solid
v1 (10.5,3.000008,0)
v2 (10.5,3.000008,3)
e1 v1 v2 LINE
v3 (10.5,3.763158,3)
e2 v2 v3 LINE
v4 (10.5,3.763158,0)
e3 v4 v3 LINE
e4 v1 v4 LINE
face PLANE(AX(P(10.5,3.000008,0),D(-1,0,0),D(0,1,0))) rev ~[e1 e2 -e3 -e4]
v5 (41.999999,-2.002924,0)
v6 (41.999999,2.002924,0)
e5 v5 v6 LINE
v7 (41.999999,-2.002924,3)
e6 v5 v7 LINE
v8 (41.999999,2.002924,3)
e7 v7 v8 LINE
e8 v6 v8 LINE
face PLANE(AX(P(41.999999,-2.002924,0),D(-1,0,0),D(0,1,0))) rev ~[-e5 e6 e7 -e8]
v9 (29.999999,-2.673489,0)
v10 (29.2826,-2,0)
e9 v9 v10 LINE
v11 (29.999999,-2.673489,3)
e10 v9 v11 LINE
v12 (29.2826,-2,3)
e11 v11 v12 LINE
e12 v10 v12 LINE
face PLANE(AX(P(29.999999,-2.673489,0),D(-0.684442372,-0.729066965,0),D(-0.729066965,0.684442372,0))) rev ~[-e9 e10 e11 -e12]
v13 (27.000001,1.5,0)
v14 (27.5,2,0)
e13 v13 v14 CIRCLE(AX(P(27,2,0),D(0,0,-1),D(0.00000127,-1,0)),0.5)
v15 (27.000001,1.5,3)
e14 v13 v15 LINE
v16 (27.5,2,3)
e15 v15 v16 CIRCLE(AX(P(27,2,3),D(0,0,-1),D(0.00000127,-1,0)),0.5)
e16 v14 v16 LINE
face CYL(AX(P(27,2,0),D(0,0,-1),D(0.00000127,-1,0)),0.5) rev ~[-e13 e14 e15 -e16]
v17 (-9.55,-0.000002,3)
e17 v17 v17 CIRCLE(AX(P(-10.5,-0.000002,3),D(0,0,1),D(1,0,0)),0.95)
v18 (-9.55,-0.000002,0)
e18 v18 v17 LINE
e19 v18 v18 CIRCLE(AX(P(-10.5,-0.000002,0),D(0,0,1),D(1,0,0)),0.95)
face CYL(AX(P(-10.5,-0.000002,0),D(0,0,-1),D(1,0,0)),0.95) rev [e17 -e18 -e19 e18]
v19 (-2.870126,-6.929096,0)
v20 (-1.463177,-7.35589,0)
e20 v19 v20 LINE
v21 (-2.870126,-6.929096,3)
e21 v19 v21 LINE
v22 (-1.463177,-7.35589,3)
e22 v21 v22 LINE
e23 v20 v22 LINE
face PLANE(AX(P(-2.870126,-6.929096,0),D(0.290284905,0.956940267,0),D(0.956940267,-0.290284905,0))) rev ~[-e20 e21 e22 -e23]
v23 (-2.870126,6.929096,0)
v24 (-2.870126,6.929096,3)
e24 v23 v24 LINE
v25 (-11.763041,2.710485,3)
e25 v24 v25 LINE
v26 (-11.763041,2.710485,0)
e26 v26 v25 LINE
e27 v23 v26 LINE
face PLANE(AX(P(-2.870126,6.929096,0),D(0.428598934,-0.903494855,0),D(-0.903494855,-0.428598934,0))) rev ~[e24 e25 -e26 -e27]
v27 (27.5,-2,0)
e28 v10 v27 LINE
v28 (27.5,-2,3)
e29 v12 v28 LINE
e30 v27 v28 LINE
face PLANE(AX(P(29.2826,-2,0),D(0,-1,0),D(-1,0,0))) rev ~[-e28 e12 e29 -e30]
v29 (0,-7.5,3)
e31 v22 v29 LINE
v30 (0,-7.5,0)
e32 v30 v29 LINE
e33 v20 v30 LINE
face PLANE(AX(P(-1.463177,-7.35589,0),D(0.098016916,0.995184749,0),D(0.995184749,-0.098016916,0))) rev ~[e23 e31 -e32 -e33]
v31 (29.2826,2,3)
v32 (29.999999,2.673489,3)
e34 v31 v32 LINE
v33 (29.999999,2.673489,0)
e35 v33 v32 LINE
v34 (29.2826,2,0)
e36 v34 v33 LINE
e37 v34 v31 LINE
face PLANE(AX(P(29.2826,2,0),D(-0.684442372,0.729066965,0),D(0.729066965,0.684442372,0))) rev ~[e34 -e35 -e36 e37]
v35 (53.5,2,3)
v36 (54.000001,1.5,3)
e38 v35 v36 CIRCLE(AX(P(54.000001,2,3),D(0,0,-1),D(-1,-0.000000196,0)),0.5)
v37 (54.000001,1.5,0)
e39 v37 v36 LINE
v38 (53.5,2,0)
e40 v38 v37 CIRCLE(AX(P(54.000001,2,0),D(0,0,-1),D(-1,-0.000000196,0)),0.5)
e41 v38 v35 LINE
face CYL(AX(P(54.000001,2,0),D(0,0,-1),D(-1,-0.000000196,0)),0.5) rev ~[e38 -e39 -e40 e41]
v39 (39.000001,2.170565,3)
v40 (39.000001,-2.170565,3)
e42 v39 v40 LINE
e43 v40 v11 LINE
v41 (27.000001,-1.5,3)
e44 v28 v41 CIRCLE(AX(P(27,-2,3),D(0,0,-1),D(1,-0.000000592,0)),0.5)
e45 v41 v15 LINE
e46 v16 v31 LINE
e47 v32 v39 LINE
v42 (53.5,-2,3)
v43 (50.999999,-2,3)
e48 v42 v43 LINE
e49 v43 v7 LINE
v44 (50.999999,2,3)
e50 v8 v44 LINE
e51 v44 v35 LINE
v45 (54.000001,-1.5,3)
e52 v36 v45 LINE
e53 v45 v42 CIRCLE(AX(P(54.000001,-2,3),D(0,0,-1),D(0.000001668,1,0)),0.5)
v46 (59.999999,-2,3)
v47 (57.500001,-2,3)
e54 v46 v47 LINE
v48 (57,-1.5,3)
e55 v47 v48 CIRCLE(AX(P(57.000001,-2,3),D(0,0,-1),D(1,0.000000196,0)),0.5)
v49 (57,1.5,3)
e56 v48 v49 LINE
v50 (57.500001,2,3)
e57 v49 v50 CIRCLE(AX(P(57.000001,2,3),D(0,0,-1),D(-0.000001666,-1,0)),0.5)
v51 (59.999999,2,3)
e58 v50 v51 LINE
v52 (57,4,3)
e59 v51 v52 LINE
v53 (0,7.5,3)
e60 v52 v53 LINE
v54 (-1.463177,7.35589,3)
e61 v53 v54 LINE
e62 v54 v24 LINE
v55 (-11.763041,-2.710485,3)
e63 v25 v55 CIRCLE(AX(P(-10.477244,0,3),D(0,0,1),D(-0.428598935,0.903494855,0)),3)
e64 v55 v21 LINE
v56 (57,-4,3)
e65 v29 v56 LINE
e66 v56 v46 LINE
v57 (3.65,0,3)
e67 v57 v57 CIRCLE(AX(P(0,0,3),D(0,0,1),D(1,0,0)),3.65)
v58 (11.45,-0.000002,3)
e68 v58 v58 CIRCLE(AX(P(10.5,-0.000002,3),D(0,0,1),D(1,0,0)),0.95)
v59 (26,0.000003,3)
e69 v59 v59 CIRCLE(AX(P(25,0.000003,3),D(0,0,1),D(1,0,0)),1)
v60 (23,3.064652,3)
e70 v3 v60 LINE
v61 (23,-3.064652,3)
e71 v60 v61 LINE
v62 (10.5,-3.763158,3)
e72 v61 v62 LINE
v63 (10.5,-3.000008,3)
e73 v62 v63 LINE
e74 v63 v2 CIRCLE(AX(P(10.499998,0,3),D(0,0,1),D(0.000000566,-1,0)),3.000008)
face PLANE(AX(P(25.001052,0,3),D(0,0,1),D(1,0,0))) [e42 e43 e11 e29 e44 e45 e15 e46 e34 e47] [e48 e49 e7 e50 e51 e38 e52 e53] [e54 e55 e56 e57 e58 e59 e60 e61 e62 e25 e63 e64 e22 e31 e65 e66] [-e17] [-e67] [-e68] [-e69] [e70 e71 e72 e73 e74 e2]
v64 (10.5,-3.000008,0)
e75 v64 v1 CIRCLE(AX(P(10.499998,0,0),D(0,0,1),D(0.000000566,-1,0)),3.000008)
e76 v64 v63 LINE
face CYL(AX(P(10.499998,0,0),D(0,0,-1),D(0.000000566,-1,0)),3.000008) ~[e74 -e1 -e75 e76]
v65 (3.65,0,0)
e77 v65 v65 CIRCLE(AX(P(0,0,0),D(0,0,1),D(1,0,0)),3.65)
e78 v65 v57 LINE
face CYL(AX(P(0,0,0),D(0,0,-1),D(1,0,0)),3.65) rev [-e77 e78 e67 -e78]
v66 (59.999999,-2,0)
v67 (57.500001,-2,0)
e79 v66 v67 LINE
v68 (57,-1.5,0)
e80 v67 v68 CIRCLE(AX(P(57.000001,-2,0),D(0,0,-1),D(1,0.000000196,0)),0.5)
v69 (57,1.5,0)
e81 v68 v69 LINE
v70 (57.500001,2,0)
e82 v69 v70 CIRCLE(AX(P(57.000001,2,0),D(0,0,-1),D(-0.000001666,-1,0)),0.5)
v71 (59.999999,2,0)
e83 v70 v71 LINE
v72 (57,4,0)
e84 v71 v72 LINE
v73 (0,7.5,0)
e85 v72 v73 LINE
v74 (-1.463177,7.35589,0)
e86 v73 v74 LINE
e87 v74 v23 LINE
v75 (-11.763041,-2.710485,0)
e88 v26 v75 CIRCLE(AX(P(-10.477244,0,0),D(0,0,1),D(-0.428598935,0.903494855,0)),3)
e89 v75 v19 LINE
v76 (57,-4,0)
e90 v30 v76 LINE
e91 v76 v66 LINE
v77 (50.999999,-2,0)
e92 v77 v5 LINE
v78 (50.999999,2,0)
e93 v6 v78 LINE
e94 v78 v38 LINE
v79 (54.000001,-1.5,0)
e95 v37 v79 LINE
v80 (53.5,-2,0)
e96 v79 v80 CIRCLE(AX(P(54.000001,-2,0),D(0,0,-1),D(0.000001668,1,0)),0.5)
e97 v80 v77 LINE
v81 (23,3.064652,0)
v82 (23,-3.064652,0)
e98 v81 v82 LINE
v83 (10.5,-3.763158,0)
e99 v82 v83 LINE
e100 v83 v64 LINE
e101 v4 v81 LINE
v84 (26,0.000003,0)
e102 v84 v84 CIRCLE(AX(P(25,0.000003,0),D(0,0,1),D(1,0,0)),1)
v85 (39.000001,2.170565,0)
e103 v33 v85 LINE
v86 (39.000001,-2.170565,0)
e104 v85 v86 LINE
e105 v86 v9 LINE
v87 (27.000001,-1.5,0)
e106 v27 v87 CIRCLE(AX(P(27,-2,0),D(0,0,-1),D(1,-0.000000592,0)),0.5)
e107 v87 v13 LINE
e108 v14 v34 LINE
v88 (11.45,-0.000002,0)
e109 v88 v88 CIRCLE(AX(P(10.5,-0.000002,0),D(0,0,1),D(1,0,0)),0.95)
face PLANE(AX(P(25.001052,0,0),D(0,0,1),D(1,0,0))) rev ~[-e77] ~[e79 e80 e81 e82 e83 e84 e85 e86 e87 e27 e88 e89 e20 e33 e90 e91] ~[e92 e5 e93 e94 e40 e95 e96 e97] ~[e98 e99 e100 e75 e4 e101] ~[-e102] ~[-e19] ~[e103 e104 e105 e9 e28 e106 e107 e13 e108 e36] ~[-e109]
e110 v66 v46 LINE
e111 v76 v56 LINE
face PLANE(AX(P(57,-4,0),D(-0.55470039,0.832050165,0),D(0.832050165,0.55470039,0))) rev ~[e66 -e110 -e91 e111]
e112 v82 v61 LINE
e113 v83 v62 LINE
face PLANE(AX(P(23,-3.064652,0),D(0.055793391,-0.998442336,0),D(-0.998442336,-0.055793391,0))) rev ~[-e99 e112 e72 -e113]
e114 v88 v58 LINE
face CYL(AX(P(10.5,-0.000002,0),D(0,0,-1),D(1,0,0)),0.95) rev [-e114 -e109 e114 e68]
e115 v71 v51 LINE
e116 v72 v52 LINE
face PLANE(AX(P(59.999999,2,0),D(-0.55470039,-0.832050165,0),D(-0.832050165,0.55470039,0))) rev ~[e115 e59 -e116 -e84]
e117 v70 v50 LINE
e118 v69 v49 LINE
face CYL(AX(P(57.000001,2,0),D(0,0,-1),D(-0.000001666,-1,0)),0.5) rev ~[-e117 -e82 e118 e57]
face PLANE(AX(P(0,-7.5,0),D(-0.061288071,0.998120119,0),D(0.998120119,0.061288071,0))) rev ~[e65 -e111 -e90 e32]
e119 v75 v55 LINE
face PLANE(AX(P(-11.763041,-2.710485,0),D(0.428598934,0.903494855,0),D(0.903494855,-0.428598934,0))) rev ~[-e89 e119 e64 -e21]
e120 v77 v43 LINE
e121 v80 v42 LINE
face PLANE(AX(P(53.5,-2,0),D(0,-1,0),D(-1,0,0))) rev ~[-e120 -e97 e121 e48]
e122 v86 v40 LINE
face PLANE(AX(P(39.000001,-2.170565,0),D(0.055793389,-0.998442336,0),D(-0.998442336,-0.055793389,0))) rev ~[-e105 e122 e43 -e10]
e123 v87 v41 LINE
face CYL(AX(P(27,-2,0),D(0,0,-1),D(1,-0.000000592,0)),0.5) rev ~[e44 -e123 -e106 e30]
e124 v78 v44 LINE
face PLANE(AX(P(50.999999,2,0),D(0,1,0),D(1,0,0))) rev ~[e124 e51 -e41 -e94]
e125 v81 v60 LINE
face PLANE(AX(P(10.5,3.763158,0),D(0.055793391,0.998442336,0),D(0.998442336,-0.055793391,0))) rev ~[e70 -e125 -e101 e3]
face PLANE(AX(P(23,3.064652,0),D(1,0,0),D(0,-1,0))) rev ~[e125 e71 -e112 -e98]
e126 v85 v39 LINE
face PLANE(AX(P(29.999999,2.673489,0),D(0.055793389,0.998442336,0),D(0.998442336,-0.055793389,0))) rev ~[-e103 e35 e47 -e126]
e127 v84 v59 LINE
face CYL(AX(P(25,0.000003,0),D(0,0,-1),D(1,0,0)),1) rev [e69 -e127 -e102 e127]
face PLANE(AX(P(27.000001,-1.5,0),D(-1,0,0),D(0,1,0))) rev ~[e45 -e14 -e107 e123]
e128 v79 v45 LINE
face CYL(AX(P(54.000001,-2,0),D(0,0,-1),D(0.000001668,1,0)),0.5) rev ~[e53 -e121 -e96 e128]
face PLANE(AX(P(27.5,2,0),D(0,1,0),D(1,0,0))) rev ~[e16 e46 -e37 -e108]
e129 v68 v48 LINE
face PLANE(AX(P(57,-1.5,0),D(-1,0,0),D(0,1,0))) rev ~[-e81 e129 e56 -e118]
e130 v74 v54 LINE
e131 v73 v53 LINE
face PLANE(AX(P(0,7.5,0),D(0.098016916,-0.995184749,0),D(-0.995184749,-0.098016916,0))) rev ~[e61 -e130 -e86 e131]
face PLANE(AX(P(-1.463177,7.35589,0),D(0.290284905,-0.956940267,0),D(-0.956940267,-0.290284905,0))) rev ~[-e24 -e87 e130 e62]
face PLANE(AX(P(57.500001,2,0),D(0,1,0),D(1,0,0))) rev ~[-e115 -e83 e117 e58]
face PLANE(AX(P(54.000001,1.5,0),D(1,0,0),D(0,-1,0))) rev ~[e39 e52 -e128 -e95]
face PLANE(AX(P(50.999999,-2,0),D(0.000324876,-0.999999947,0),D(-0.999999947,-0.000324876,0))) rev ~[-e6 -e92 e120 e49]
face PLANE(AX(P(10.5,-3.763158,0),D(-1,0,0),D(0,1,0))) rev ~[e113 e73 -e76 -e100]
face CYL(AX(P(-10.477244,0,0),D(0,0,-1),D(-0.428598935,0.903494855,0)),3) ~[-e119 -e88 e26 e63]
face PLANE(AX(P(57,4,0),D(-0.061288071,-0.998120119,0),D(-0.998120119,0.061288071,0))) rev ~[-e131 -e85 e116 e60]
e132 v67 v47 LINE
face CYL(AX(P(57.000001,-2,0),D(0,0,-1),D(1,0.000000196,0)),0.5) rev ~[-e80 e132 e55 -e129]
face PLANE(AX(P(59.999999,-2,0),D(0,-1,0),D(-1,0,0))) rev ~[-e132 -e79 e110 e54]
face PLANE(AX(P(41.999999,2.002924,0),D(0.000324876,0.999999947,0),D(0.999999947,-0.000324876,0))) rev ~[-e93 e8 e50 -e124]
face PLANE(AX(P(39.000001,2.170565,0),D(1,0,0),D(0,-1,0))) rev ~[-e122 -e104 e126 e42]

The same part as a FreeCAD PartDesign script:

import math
import FreeCAD as App
import Part
import Sketcher

V = App.Vector

doc = App.newDocument("Part")
params = doc.addObject("Spreadsheet::Sheet", "Params")
for row, (alias, value) in enumerate([
    ("sketch1_diameter", "2 mm"),
    ("sketch1_radius", "3 mm"),
    ("sketch1_diameter2", "1.9 mm"),
    ("sketch1_diameter3", "1.9 mm"),
    ("sketch1_diameter4", "7.3 mm"),
    ("pad1_length", "3 mm"),
], start=1):
    params.set(f"A{row}", alias)
    params.set(f"B{row}", "=" + value)
    params.setAlias(f"B{row}", alias)

body = doc.addObject("PartDesign::Body", "Body")

# Sketch on XY plane
sketch1 = body.newObject("Sketcher::SketchObject", "Sketch")
sketch1.AttachmentSupport = (doc.getObject("XY_Plane"), [""])
sketch1.MapMode = "FlatFace"
sketch1.addGeometry([
    Part.LineSegment(V(57, 4, 0), V(0, 7.5, 0)),  # 0
    Part.LineSegment(V(0, 7.5, 0), V(-1.463177, 7.35589, 0)),  # 1
    Part.LineSegment(V(-1.463177, 7.35589, 0), V(-2.870126, 6.929096, 0)),  # 2
    Part.LineSegment(V(-2.870126, 6.929096, 0), V(-11.763041, 2.710485, 0)),  # 3
    Part.ArcOfCircle(Part.Circle(V(-10.477244, 0, 0), V(0, 0, 1), 3), math.radians(115.378678), math.radians(244.621322)),  # 4
    Part.LineSegment(V(-11.763041, -2.710485, 0), V(-2.870126, -6.929096, 0)),  # 5
    Part.LineSegment(V(-2.870126, -6.929096, 0), V(-1.463177, -7.35589, 0)),  # 6
    Part.LineSegment(V(-1.463177, -7.35589, 0), V(0, -7.5, 0)),  # 7
    Part.LineSegment(V(0, -7.5, 0), V(57, -4, 0)),  # 8
    Part.LineSegment(V(57, -4, 0), V(59.999999, -2, 0)),  # 9
    Part.LineSegment(V(59.999999, -2, 0), V(57.500001, -2, 0)),  # 10
    Part.ArcOfCircle(Part.Circle(V(57.000001, -2, 0), V(0, 0, 1), 0.5), math.radians(90.000095), math.radians(360.000011)),  # 11
    Part.LineSegment(V(57, -1.5, 0), V(57, 1.5, 0)),  # 12
    Part.ArcOfCircle(Part.Circle(V(57.000001, 2, 0), V(0, 0, 1), 0.5), math.radians(-0.000011), math.radians(269.999905)),  # 13
    Part.LineSegment(V(57.500001, 2, 0), V(59.999999, 2, 0)),  # 14
    Part.LineSegment(V(59.999999, 2, 0), V(57, 4, 0)),  # 15
    Part.Circle(V(-10.5, -0.000002, 0), V(0, 0, 1), 0.95),  # 16
    Part.Circle(V(10.5, -0.000002, 0), V(0, 0, 1), 0.95),  # 17
    Part.Circle(V(0, 0, 0), V(0, 0, 1), 3.65),  # 18
    Part.LineSegment(V(23, -3.064652, 0), V(10.5, -3.763158, 0)),  # 19
    Part.LineSegment(V(10.5, -3.763158, 0), V(10.5, -3.000008, 0)),  # 20
    Part.ArcOfCircle(Part.Circle(V(10.499998, 0, 0), V(0, 0, 1), 3.000008), math.radians(-89.999968), math.radians(89.999968)),  # 21
    Part.LineSegment(V(10.5, 3.000008, 0), V(10.5, 3.763158, 0)),  # 22
    Part.LineSegment(V(10.5, 3.763158, 0), V(23, 3.064652, 0)),  # 23
    Part.LineSegment(V(23, 3.064652, 0), V(23, -3.064652, 0)),  # 24
    Part.Circle(V(25, 0.000003, 0), V(0, 0, 1), 1),  # 25
    Part.ArcOfCircle(Part.Circle(V(27, 2, 0), V(0, 0, 1), 0.5), math.radians(0.000034), math.radians(270.000073)),  # 26
    Part.LineSegment(V(27.5, 2, 0), V(29.2826, 2, 0)),  # 27
    Part.LineSegment(V(29.2826, 2, 0), V(29.999999, 2.673489, 0)),  # 28
    Part.LineSegment(V(29.999999, 2.673489, 0), V(39.000001, 2.170565, 0)),  # 29
    Part.LineSegment(V(39.000001, 2.170565, 0), V(39.000001, -2.170565, 0)),  # 30
    Part.LineSegment(V(39.000001, -2.170565, 0), V(29.999999, -2.673489, 0)),  # 31
    Part.LineSegment(V(29.999999, -2.673489, 0), V(29.2826, -2, 0)),  # 32
    Part.LineSegment(V(29.2826, -2, 0), V(27.5, -2, 0)),  # 33
    Part.ArcOfCircle(Part.Circle(V(27, -2, 0), V(0, 0, 1), 0.5), math.radians(89.999927), math.radians(359.999966)),  # 34
    Part.LineSegment(V(27.000001, -1.5, 0), V(27.000001, 1.5, 0)),  # 35
    Part.LineSegment(V(41.999999, -2.002924, 0), V(41.999999, 2.002924, 0)),  # 36
    Part.LineSegment(V(41.999999, 2.002924, 0), V(50.999999, 2, 0)),  # 37
    Part.LineSegment(V(50.999999, 2, 0), V(53.5, 2, 0)),  # 38
    Part.ArcOfCircle(Part.Circle(V(54.000001, 2, 0), V(0, 0, 1), 0.5), math.radians(-89.999904), math.radians(180.000011)),  # 39
    Part.LineSegment(V(54.000001, 1.5, 0), V(54.000001, -1.5, 0)),  # 40
    Part.ArcOfCircle(Part.Circle(V(54.000001, -2, 0), V(0, 0, 1), 0.5), math.radians(179.999989), math.radians(449.999904)),  # 41
    Part.LineSegment(V(53.5, -2, 0), V(50.999999, -2, 0)),  # 42
    Part.LineSegment(V(50.999999, -2, 0), V(41.999999, -2.002924, 0)),  # 43
], False)
sketch1.addConstraint([
    Sketcher.Constraint("Coincident", 0, 2, 1, 1),
    Sketcher.Constraint("Coincident", 1, 2, 2, 1),
    Sketcher.Constraint("Coincident", 2, 2, 3, 1),
    Sketcher.Constraint("Coincident", 3, 2, 4, 1),
    Sketcher.Constraint("Coincident", 4, 2, 5, 1),
    Sketcher.Constraint("Coincident", 5, 2, 6, 1),
    Sketcher.Constraint("Coincident", 6, 2, 7, 1),
    Sketcher.Constraint("Coincident", 7, 2, 8, 1),
    Sketcher.Constraint("Coincident", 8, 2, 9, 1),
    Sketcher.Constraint("Coincident", 9, 2, 10, 1),
    Sketcher.Constraint("Coincident", 10, 2, 11, 2),
    Sketcher.Constraint("Coincident", 11, 1, 12, 1),
    Sketcher.Constraint("Coincident", 12, 2, 13, 2),
    Sketcher.Constraint("Coincident", 13, 1, 14, 1),
    Sketcher.Constraint("Coincident", 14, 2, 15, 1),
    Sketcher.Constraint("Coincident", 15, 2, 0, 1),
    Sketcher.Constraint("Coincident", 19, 2, 20, 1),
    Sketcher.Constraint("Coincident", 20, 2, 21, 1),
    Sketcher.Constraint("Coincident", 21, 2, 22, 1),
    Sketcher.Constraint("Coincident", 22, 2, 23, 1),
    Sketcher.Constraint("Coincident", 23, 2, 24, 1),
    Sketcher.Constraint("Coincident", 24, 2, 19, 1),
    Sketcher.Constraint("Coincident", 26, 1, 27, 1),
    Sketcher.Constraint("Coincident", 27, 2, 28, 1),
    Sketcher.Constraint("Coincident", 28, 2, 29, 1),
    Sketcher.Constraint("Coincident", 29, 2, 30, 1),
    Sketcher.Constraint("Coincident", 30, 2, 31, 1),
    Sketcher.Constraint("Coincident", 31, 2, 32, 1),
    Sketcher.Constraint("Coincident", 32, 2, 33, 1),
    Sketcher.Constraint("Coincident", 33, 2, 34, 2),
    Sketcher.Constraint("Coincident", 34, 1, 35, 1),
    Sketcher.Constraint("Coincident", 35, 2, 26, 2),
    Sketcher.Constraint("Coincident", 36, 2, 37, 1),
    Sketcher.Constraint("Coincident", 37, 2, 38, 1),
    Sketcher.Constraint("Coincident", 38, 2, 39, 2),
    Sketcher.Constraint("Coincident", 39, 1, 40, 1),
    Sketcher.Constraint("Coincident", 40, 2, 41, 2),
    Sketcher.Constraint("Coincident", 41, 1, 42, 1),
    Sketcher.Constraint("Coincident", 42, 2, 43, 1),
    Sketcher.Constraint("Coincident", 43, 2, 36, 1),
    Sketcher.Constraint("Horizontal", 10),
    Sketcher.Constraint("Vertical", 12),
    Sketcher.Constraint("Horizontal", 14),
    Sketcher.Constraint("Vertical", 20),
    Sketcher.Constraint("Vertical", 22),
    Sketcher.Constraint("Vertical", 24),
    Sketcher.Constraint("Horizontal", 27),
    Sketcher.Constraint("Vertical", 30),
    Sketcher.Constraint("Horizontal", 33),
    Sketcher.Constraint("Vertical", 35),
    Sketcher.Constraint("Vertical", 36),
    Sketcher.Constraint("Horizontal", 38),
    Sketcher.Constraint("Vertical", 40),
    Sketcher.Constraint("Horizontal", 42),
    Sketcher.Constraint("Coincident", 18, 3, -1, 1),
    Sketcher.Constraint("Coincident", 21, 3, 17, 3),
    Sketcher.Constraint("PointOnObject", 4, 3, -1),
    Sketcher.Constraint("PointOnObject", 16, 3, -1),
    Sketcher.Constraint("PointOnObject", 17, 3, -1),
    Sketcher.Constraint("PointOnObject", 0, 2, -2),
    Sketcher.Constraint("PointOnObject", 7, 2, -2),
    Sketcher.Constraint("Diameter", 25, 2.0),
    Sketcher.Constraint("Radius", 4, 3.0),
    Sketcher.Constraint("Diameter", 16, 1.9),
    Sketcher.Constraint("Diameter", 17, 1.9),
    Sketcher.Constraint("Diameter", 18, 7.3),
    Sketcher.Constraint("Radius", 11, 0.5),
    Sketcher.Constraint("Radius", 13, 0.5),
    Sketcher.Constraint("Radius", 26, 0.5),
    Sketcher.Constraint("Radius", 34, 0.5),
    Sketcher.Constraint("Radius", 39, 0.5),
    Sketcher.Constraint("Radius", 41, 0.5),
    Sketcher.Constraint("DistanceY", 12, 1, 12, 2, 3.0),
    Sketcher.Constraint("DistanceY", 35, 1, 35, 2, 3.0),
    Sketcher.Constraint("DistanceY", 40, 2, 40, 1, 3.0),
    Sketcher.Constraint("Distance", 37, 9.0),
    Sketcher.Constraint("Distance", 43, 9.0),
    Sketcher.Constraint("DistanceX", 38, 1, 38, 2, 2.500001),
    Sketcher.Constraint("DistanceX", 42, 2, 42, 1, 2.500001),
    Sketcher.Constraint("DistanceX", -1, 1, 11, 3, 57.000001),
    Sketcher.Constraint("DistanceY", 11, 3, -1, 1, 2.0),
    Sketcher.Constraint("DistanceX", -1, 1, 13, 3, 57.000001),
    Sketcher.Constraint("DistanceX", -1, 1, 25, 3, 25.0),
    Sketcher.Constraint("DistanceX", -1, 1, 26, 3, 27.0),
    Sketcher.Constraint("DistanceY", -1, 1, 26, 3, 2.0),
    Sketcher.Constraint("DistanceX", -1, 1, 34, 3, 27.0),
    Sketcher.Constraint("DistanceX", -1, 1, 39, 3, 54.000001),
    Sketcher.Constraint("DistanceY", -1, 1, 39, 3, 2.0),
    Sketcher.Constraint("DistanceX", -1, 1, 8, 2, 57.0),
    Sketcher.Constraint("DistanceY", 8, 2, -1, 1, 4.0),
    Sketcher.Constraint("DistanceX", -1, 1, 9, 2, 59.999999),
    Sketcher.Constraint("DistanceY", 9, 2, -1, 1, 2.0),
    Sketcher.Constraint("DistanceX", -1, 1, 11, 1, 57.0),
    Sketcher.Constraint("DistanceY", -1, 1, 13, 1, 2.0),
    Sketcher.Constraint("DistanceX", -1, 1, 14, 2, 59.999999),
    Sketcher.Constraint("DistanceX", -1, 1, 15, 2, 57.0),
    Sketcher.Constraint("DistanceY", -1, 1, 15, 2, 4.0),
    Sketcher.Constraint("DistanceX", -1, 1, 23, 2, 23.0),
    Sketcher.Constraint("DistanceY", -1, 1, 26, 1, 2.0),
    Sketcher.Constraint("DistanceX", -1, 1, 28, 2, 29.999999),
    Sketcher.Constraint("DistanceX", -1, 1, 29, 2, 39.000001),
    Sketcher.Constraint("DistanceX", -1, 1, 31, 2, 29.999999),
    Sketcher.Constraint("DistanceY", 32, 2, -1, 1, 2.0),
    Sketcher.Constraint("DistanceX", -1, 1, 34, 1, 27.000001),
    Sketcher.Constraint("DistanceY", -1, 1, 37, 2, 2.0),
    Sketcher.Constraint("DistanceX", -1, 1, 39, 1, 54.000001),
    Sketcher.Constraint("DistanceY", 41, 1, -1, 1, 2.0),
    Sketcher.Constraint("DistanceX", 16, 3, 17, 3, 21.0),
    Sketcher.Constraint("DistanceX", 16, 3, -1, 1, 10.5),
    Sketcher.Constraint("DistanceY", -1, 1, 0, 2, 7.5),
    Sketcher.Constraint("DistanceY", 7, 2, -1, 1, 7.5),
    Sketcher.Constraint("DistanceX", -1, 1, 19, 2, 10.5),
    Sketcher.Constraint("DistanceX", -1, 1, 21, 2, 10.5),
    Sketcher.Constraint("Radius", 21, 3.000008),
    Sketcher.Constraint("DistanceX", 27, 1, 27, 2, 1.7826),
    Sketcher.Constraint("DistanceX", 33, 2, 33, 1, 1.7826),
    Sketcher.Constraint("Distance", 19, 12.519501),
    Sketcher.Constraint("Distance", 23, 12.519501),
    Sketcher.Constraint("DistanceY", 20, 1, 20, 2, 0.763149),
    Sketcher.Constraint("DistanceY", 22, 1, 22, 2, 0.763149),
    Sketcher.Constraint("DistanceY", 30, 2, 30, 1, 4.341131),
    Sketcher.Constraint("DistanceY", 36, 1, 36, 2, 4.005848),
    Sketcher.Constraint("DistanceY", -1, 1, 1, 2, 7.35589),
    Sketcher.Constraint("DistanceX", 3, 2, -1, 1, 11.763041),
    Sketcher.Constraint("DistanceX", 4, 2, -1, 1, 11.763041),
    Sketcher.Constraint("DistanceY", 6, 2, -1, 1, 7.35589),
    Sketcher.Constraint("DistanceY", -1, 1, 28, 2, 2.673489),
    Sketcher.Constraint("DistanceY", 31, 2, -1, 1, 2.673489),
    Sketcher.Constraint("DistanceX", 2, 2, 1, 2, 1.406948),
    Sketcher.Constraint("DistanceX", 4, 3, 2, 2, 7.607118),
    Sketcher.Constraint("DistanceY", 3, 2, 2, 2, 4.218612),
    Sketcher.Constraint("DistanceY", 4, 2, 3, 2, 5.420969),
    Sketcher.Constraint("DistanceY", 5, 2, 4, 2, 4.218612),
    Sketcher.Constraint("DistanceX", 4, 3, 5, 2, 7.607118),
    Sketcher.Constraint("DistanceX", 5, 2, 6, 2, 1.406948),
    Sketcher.Constraint("DistanceY", 25, 3, 23, 2, 3.064649),
    Sketcher.Constraint("DistanceY", 36, 2, 29, 2, 0.167641),
    Sketcher.Constraint("Distance", 29, 9.014042),
])
sketch1.setExpression("Constraints[61]", "Params.sketch1_diameter")
sketch1.setExpression("Constraints[62]", "Params.sketch1_radius")
sketch1.setExpression("Constraints[63]", "Params.sketch1_diameter2")
sketch1.setExpression("Constraints[64]", "Params.sketch1_diameter3")
sketch1.setExpression("Constraints[65]", "Params.sketch1_diameter4")
pad1 = body.newObject("PartDesign::Pad", "Pad")
pad1.Profile = sketch1
pad1.setExpression("Length", "Params.pad1_length")

doc.recompute()
